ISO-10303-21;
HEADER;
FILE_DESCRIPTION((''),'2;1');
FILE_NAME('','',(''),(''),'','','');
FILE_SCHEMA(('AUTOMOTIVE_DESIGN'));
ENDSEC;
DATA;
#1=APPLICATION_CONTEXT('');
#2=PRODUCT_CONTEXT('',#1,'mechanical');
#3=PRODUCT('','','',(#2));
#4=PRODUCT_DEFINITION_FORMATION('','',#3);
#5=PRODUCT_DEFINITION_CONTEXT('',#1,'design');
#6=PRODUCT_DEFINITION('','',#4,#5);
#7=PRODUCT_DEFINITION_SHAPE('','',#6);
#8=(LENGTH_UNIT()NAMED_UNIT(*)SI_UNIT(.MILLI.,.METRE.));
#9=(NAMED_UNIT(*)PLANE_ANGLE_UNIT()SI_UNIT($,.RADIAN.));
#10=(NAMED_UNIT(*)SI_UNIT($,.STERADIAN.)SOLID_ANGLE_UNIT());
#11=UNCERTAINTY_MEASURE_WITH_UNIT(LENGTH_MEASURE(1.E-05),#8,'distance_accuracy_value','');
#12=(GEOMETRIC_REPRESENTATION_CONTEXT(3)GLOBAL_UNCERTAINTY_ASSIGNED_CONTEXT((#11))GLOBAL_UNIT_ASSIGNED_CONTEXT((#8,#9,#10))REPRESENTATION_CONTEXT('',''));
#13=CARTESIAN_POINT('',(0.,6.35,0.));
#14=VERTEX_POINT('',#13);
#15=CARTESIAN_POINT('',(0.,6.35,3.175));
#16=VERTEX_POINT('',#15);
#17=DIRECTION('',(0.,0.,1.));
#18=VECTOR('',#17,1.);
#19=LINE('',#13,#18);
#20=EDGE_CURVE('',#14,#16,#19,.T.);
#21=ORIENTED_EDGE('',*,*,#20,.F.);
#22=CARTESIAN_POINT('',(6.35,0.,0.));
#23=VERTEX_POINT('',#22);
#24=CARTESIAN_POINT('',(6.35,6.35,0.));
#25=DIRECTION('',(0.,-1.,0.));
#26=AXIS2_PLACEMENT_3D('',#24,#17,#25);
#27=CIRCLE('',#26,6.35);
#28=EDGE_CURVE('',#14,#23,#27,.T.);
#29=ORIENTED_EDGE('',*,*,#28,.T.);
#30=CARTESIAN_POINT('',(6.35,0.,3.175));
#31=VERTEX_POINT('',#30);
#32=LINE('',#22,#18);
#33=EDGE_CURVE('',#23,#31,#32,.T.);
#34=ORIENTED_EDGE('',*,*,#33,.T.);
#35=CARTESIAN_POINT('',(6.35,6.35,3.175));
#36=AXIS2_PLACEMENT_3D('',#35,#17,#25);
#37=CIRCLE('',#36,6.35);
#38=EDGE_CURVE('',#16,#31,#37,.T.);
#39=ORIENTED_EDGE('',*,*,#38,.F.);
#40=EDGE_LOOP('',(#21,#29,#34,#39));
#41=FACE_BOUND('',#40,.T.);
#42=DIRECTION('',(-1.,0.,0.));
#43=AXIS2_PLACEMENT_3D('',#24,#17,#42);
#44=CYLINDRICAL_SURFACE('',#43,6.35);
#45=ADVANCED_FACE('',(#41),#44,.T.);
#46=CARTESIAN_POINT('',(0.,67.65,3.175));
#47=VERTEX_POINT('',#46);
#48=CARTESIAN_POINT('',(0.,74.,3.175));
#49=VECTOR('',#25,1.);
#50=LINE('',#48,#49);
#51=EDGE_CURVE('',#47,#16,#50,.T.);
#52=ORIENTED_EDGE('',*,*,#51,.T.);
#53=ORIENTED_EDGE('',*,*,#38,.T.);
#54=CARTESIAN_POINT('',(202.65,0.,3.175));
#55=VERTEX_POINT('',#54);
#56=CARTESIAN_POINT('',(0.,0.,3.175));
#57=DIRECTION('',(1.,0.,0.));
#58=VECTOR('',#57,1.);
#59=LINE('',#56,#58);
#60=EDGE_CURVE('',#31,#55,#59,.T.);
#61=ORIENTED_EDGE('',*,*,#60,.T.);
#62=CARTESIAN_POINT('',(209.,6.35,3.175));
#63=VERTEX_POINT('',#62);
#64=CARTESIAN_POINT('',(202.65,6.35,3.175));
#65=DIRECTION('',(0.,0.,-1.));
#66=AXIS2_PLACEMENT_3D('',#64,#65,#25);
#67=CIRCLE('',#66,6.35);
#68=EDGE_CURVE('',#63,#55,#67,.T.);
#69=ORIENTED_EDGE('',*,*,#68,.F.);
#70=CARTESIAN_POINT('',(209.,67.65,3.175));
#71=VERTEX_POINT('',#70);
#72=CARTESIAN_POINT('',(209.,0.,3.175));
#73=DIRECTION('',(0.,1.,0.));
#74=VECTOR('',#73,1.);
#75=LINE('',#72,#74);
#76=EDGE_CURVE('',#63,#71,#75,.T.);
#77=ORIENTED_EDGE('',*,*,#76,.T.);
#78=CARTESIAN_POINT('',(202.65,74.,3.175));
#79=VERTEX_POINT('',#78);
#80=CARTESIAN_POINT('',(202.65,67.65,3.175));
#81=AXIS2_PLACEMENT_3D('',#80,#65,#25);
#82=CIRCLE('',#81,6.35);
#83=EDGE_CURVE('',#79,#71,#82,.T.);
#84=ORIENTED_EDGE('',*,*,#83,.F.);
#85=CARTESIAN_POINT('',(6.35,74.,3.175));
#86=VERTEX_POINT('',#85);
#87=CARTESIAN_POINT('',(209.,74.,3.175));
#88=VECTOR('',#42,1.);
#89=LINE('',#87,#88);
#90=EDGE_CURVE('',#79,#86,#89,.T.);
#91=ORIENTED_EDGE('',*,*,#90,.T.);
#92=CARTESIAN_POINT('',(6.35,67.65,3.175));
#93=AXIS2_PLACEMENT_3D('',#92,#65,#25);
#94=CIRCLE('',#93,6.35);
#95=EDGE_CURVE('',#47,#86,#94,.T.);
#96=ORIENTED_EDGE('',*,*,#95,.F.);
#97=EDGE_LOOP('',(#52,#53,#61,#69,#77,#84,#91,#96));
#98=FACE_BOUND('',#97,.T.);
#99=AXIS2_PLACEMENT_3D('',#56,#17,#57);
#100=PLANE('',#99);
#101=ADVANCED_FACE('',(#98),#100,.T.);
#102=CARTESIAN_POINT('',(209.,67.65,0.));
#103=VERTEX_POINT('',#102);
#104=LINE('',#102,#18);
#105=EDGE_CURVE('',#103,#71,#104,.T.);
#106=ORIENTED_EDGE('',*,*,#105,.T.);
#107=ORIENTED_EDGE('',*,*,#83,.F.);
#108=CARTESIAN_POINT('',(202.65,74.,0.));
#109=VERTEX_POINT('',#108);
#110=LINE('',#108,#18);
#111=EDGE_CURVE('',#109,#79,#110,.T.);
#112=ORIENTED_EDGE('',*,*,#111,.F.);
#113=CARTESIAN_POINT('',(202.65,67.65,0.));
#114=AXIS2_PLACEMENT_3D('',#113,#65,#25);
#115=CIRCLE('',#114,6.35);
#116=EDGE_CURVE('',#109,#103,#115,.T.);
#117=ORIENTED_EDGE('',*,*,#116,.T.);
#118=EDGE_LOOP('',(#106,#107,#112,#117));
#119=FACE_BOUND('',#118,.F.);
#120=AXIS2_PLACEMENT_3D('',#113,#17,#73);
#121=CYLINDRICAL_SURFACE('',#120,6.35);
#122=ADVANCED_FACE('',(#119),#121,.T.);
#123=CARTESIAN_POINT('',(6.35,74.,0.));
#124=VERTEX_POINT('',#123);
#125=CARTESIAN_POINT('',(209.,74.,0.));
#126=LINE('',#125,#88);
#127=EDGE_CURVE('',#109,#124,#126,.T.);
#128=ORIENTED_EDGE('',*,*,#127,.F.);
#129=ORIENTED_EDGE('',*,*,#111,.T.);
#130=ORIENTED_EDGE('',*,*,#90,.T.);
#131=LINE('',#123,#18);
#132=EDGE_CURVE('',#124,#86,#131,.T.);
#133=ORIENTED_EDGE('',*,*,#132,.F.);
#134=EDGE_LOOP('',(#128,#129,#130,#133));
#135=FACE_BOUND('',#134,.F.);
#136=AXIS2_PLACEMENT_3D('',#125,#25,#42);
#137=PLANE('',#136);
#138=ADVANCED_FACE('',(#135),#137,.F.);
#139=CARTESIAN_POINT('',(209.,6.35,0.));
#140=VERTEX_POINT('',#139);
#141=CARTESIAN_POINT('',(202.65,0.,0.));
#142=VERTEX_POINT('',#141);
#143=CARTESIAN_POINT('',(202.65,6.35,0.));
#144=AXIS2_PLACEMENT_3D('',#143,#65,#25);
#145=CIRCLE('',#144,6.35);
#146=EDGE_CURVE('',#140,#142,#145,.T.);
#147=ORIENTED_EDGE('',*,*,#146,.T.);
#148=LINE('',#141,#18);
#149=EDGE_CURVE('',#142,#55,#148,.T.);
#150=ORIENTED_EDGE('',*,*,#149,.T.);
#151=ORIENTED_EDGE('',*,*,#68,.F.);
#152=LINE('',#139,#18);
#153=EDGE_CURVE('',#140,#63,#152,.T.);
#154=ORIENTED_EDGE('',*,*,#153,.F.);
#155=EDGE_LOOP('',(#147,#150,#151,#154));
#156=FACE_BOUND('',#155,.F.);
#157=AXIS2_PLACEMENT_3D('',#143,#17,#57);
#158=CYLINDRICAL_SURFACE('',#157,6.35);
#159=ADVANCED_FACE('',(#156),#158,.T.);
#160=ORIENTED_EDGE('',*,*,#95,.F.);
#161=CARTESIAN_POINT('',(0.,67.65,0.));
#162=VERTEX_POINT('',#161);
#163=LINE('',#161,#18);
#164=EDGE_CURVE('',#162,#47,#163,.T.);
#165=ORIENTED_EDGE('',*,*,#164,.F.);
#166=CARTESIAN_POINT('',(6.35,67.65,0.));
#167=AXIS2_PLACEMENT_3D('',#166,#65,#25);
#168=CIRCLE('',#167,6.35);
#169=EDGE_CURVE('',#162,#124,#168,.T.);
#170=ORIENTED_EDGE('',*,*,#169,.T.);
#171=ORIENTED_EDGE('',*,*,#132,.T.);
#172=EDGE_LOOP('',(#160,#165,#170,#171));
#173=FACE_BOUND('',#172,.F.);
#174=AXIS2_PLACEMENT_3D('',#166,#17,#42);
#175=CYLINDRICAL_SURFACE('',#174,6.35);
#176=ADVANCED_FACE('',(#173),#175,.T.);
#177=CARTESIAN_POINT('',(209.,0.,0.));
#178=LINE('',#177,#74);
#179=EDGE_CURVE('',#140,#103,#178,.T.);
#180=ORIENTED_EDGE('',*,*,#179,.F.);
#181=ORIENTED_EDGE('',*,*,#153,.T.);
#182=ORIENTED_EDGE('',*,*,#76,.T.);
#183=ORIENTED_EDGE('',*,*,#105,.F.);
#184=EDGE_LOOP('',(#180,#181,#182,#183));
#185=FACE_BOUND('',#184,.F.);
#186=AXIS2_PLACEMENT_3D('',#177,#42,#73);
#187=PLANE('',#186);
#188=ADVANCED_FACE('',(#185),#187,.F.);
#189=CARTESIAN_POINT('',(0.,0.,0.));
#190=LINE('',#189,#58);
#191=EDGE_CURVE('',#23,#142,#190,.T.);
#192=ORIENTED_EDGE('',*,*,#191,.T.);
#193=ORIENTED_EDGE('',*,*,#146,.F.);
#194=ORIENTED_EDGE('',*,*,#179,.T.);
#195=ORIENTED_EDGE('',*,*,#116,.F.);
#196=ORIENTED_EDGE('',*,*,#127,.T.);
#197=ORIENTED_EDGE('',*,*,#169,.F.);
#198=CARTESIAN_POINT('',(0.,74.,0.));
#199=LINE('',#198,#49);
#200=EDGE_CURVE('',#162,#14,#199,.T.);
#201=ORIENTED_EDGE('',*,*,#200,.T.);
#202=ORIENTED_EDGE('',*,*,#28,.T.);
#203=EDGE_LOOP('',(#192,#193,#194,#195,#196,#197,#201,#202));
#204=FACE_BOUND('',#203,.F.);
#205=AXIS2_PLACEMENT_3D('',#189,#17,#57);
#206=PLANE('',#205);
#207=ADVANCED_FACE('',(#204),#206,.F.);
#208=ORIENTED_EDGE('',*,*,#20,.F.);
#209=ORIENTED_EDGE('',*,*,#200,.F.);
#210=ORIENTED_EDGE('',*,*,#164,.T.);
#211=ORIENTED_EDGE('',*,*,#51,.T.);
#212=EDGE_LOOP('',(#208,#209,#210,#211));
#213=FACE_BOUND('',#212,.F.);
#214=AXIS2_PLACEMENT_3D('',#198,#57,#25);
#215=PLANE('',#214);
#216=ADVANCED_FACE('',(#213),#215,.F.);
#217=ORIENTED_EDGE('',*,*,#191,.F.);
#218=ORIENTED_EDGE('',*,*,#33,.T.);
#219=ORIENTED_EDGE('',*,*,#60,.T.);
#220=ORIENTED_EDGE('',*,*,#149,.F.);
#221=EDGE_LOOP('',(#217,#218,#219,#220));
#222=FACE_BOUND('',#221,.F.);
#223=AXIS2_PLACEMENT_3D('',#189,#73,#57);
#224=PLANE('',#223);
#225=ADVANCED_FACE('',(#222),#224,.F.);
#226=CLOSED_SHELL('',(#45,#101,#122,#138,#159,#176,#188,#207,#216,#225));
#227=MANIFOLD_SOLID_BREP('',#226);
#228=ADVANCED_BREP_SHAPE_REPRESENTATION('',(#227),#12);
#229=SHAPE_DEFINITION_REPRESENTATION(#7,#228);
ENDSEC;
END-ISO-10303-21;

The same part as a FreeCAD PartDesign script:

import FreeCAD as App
import Part
import Sketcher

V = App.Vector
Q = App.Units.Quantity


def edges_at(feature, points):
    """Names of the edges that pass closest to the given points."""
    edges = feature.Shape.Edges
    near = lambda p: min(range(len(edges)), key=lambda i: edges[i].distToShape(Part.Vertex(*p))[0])
    return sorted({f"Edge{near(p) + 1}" for p in points})

doc = App.newDocument("Part")
body = doc.addObject("PartDesign::Body", "Body")

# Sketch on XY plane
sketch1 = doc.addObject("Sketcher::SketchObject", "Sketch")
body.addObject(sketch1)
sketch1.AttachmentSupport = (doc.XY_Plane, [""])
sketch1.MapMode = "FlatFace"
sketch1.addGeometry([
    Part.LineSegment(V(0, 74, 0), V(0, 0, 0)),
    Part.LineSegment(V(0, 0, 0), V(209, 0, 0)),
    Part.LineSegment(V(209, 0, 0), V(209, 74, 0)),
    Part.LineSegment(V(209, 74, 0), V(0, 74, 0)),
], False)
sketch1.addConstraint([
    Sketcher.Constraint("Coincident", 0, 2, 1, 1),
    Sketcher.Constraint("Coincident", 1, 2, 2, 1),
    Sketcher.Constraint("Coincident", 2, 2, 3, 1),
    Sketcher.Constraint("Coincident", 3, 2, 0, 1),
    Sketcher.Constraint("Vertical", 0),
    Sketcher.Constraint("Horizontal", 1),
    Sketcher.Constraint("Vertical", 2),
    Sketcher.Constraint("Horizontal", 3),
    Sketcher.Constraint("Coincident", 0, 2, -1, 1),
    Sketcher.Constraint("DistanceX", 1, 1, 1, 2, Q("209 mm")),
    Sketcher.Constraint("DistanceY", 0, 2, 0, 1, Q("74 mm")),
])
pad1 = doc.addObject("PartDesign::Pad", "Pad")
body.addObject(pad1)
pad1.Profile = sketch1
pad1.Length = 3.175
doc.recompute()

fillet = doc.addObject("PartDesign::Fillet", "Fillet")
body.addObject(fillet)
fillet.Base = (pad1, edges_at(pad1, [
    (209, 74, 1.587),
    (0, 74, 1.587),
    (209, 0, 1.587),
    (0, 0, 1.587),
]))
fillet.Radius = 6.35

doc.recompute()
